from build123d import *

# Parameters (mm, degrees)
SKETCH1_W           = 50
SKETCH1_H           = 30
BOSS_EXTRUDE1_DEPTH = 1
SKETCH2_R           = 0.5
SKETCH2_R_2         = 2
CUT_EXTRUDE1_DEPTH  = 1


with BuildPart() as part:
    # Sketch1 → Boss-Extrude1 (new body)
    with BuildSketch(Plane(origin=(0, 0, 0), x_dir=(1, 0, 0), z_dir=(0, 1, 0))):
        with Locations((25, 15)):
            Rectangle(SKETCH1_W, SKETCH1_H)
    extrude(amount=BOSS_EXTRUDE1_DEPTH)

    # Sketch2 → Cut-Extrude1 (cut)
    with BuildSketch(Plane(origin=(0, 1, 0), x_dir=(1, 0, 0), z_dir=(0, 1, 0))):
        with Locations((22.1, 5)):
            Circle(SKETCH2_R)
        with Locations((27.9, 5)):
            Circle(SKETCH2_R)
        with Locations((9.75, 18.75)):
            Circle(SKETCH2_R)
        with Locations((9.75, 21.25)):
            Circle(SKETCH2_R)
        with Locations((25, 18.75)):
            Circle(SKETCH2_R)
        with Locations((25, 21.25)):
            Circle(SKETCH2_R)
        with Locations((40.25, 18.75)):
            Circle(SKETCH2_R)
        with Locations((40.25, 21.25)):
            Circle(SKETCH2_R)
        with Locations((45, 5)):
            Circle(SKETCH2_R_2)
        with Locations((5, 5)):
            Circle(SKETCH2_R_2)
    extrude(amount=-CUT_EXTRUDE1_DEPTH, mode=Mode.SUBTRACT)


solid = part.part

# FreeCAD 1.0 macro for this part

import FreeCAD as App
import Part
import Sketcher
Q = App.Units.Quantity


def add_polygon(sketch, points):
    """Adds a closed chain of lines whose ends are joined by coincident constraints."""
    first, n = sketch.GeometryCount, len(points)
    for a, b in zip(points, points[1:] + points[:1]):
        sketch.addGeometry(Part.LineSegment(App.Vector(*a, 0), App.Vector(*b, 0)), False)
    for i in range(n):
        sketch.addConstraint(Sketcher.Constraint("Coincident", first + i, 2, first + (i + 1) % n, 1))

doc = App.newDocument("Part")
body = doc.addObject("PartDesign::Body", "Body")

sketch1 = body.newObject("Sketcher::SketchObject", "Sketch")
sketch1.AttachmentSupport = (doc.getObject("XZ_Plane"), [""])
sketch1.MapMode = "FlatFace"
add_polygon(sketch1, [(0, -30), (0, 0), (50, 0), (50, -30)])
sketch1.addConstraint(Sketcher.Constraint("Vertical", 0))
sketch1.addConstraint(Sketcher.Constraint("Horizontal", 1))
sketch1.addConstraint(Sketcher.Constraint("Vertical", 2))
sketch1.addConstraint(Sketcher.Constraint("Horizontal", 3))
sketch1.addConstraint(Sketcher.Constraint("Coincident", 0, 2, -1, 1))
sketch1.addConstraint(Sketcher.Constraint("DistanceX", 1, 1, 1, 2, Q("50 mm")))
sketch1.addConstraint(Sketcher.Constraint("DistanceY", 0, 1, 0, 2, Q("30 mm")))
pad1 = body.newObject("PartDesign::Pad", "Pad")
pad1.Profile = sketch1
pad1.Length = 1
pad1.Reversed = True

sketch2 = body.newObject("Sketcher::SketchObject", "Sketch001")
sketch2.AttachmentSupport = (doc.getObject("XZ_Plane"), [""])
sketch2.MapMode = "FlatFace"
sketch2.AttachmentOffset = App.Placement(App.Vector(0, 0, -1), App.Rotation())
sketch2.addGeometry(Part.Circle(App.Vector(22.1, -5, 0), App.Vector(0, 0, 1), 0.5), False)
sketch2.addGeometry(Part.Circle(App.Vector(27.9, -5, 0), App.Vector(0, 0, 1), 0.5), False)
sketch2.addGeometry(Part.Circle(App.Vector(9.8, -18.8, 0), App.Vector(0, 0, 1), 0.5), False)
sketch2.addGeometry(Part.Circle(App.Vector(9.8, -21.2, 0), App.Vector(0, 0, 1), 0.5), False)
sketch2.addGeometry(Part.Circle(App.Vector(25, -18.8, 0), App.Vector(0, 0, 1), 0.5), False)
sketch2.addGeometry(Part.Circle(App.Vector(25, -21.2, 0), App.Vector(0, 0, 1), 0.5), False)
sketch2.addGeometry(Part.Circle(App.Vector(40.2, -18.8, 0), App.Vector(0, 0, 1), 0.5), False)
sketch2.addGeometry(Part.Circle(App.Vector(40.2, -21.2, 0), App.Vector(0, 0, 1), 0.5), False)
sketch2.addGeometry(Part.Circle(App.Vector(45, -5, 0), App.Vector(0, 0, 1), 2), False)
sketch2.addGeometry(Part.Circle(App.Vector(5, -5, 0), App.Vector(0, 0, 1), 2), False)
sketch2.addConstraint(Sketcher.Constraint("Equal", 0, 1))
sketch2.addConstraint(Sketcher.Constraint("Equal", 1, 2))
sketch2.addConstraint(Sketcher.Constraint("Equal", 2, 3))
sketch2.addConstraint(Sketcher.Constraint("Equal", 3, 4))
sketch2.addConstraint(Sketcher.Constraint("Equal", 4, 5))
sketch2.addConstraint(Sketcher.Constraint("Equal", 5, 6))
sketch2.addConstraint(Sketcher.Constraint("Equal", 6, 7))
sketch2.addConstraint(Sketcher.Constraint("Equal", 8, 9))
sketch2.addConstraint(Sketcher.Constraint("Horizontal", 0, 3, 1, 3))
sketch2.addConstraint(Sketcher.Constraint("Horizontal", 2, 3, 4, 3))
sketch2.addConstraint(Sketcher.Constraint("Horizontal", 3, 3, 5, 3))
sketch2.addConstraint(Sketcher.Constraint("Horizontal", 4, 3, 6, 3))
sketch2.addConstraint(Sketcher.Constraint("Horizontal", 5, 3, 7, 3))
sketch2.addConstraint(Sketcher.Constraint("Horizontal", 1, 3, 8, 3))
sketch2.addConstraint(Sketcher.Constraint("Horizontal", 8, 3, 9, 3))
sketch2.addConstraint(Sketcher.Constraint("Vertical", 2, 3, 3, 3))
sketch2.addConstraint(Sketcher.Constraint("Vertical", 4, 3, 5, 3))
sketch2.addConstraint(Sketcher.Constraint("Vertical", 6, 3, 7, 3))
sketch2.addConstraint(Sketcher.Constraint("Diameter", 0, Q("1 mm")))
sketch2.addConstraint(Sketcher.Constraint("Diameter", 8, Q("4 mm")))
sketch2.addConstraint(Sketcher.Constraint("DistanceY", 0, 3, -1, 1, Q("5 mm")))
sketch2.addConstraint(Sketcher.Constraint("DistanceX", -1, 1, 4, 3, Q("25 mm")))
sketch2.addConstraint(Sketcher.Constraint("DistanceX", -1, 1, 8, 3, Q("45 mm")))
sketch2.addConstraint(Sketcher.Constraint("DistanceX", -1, 1, 9, 3, Q("5 mm")))
sketch2.addConstraint(Sketcher.Constraint("DistanceX", -1, 1, 0, 3, Q("22.1 mm")))
sketch2.addConstraint(Sketcher.Constraint("DistanceX", -1, 1, 1, 3, Q("27.9 mm")))
sketch2.addConstraint(Sketcher.Constraint("DistanceY", 3, 3, 2, 3, Q("2.5 mm")))
sketch2.addConstraint(Sketcher.Constraint("DistanceX", 2, 3, 6, 3, Q("30.5 mm")))
sketch2.addConstraint(Sketcher.Constraint("DistanceX", -1, 1, 2, 3, Q("9.75 mm")))
sketch2.addConstraint(Sketcher.Constraint("DistanceY", 2, 3, -1, 1, Q("18.75 mm")))
pocket1 = body.newObject("PartDesign::Pocket", "Pocket")
pocket1.Profile = sketch2
pocket1.Length = 1
pocket1.Reversed = True

doc.recompute()
